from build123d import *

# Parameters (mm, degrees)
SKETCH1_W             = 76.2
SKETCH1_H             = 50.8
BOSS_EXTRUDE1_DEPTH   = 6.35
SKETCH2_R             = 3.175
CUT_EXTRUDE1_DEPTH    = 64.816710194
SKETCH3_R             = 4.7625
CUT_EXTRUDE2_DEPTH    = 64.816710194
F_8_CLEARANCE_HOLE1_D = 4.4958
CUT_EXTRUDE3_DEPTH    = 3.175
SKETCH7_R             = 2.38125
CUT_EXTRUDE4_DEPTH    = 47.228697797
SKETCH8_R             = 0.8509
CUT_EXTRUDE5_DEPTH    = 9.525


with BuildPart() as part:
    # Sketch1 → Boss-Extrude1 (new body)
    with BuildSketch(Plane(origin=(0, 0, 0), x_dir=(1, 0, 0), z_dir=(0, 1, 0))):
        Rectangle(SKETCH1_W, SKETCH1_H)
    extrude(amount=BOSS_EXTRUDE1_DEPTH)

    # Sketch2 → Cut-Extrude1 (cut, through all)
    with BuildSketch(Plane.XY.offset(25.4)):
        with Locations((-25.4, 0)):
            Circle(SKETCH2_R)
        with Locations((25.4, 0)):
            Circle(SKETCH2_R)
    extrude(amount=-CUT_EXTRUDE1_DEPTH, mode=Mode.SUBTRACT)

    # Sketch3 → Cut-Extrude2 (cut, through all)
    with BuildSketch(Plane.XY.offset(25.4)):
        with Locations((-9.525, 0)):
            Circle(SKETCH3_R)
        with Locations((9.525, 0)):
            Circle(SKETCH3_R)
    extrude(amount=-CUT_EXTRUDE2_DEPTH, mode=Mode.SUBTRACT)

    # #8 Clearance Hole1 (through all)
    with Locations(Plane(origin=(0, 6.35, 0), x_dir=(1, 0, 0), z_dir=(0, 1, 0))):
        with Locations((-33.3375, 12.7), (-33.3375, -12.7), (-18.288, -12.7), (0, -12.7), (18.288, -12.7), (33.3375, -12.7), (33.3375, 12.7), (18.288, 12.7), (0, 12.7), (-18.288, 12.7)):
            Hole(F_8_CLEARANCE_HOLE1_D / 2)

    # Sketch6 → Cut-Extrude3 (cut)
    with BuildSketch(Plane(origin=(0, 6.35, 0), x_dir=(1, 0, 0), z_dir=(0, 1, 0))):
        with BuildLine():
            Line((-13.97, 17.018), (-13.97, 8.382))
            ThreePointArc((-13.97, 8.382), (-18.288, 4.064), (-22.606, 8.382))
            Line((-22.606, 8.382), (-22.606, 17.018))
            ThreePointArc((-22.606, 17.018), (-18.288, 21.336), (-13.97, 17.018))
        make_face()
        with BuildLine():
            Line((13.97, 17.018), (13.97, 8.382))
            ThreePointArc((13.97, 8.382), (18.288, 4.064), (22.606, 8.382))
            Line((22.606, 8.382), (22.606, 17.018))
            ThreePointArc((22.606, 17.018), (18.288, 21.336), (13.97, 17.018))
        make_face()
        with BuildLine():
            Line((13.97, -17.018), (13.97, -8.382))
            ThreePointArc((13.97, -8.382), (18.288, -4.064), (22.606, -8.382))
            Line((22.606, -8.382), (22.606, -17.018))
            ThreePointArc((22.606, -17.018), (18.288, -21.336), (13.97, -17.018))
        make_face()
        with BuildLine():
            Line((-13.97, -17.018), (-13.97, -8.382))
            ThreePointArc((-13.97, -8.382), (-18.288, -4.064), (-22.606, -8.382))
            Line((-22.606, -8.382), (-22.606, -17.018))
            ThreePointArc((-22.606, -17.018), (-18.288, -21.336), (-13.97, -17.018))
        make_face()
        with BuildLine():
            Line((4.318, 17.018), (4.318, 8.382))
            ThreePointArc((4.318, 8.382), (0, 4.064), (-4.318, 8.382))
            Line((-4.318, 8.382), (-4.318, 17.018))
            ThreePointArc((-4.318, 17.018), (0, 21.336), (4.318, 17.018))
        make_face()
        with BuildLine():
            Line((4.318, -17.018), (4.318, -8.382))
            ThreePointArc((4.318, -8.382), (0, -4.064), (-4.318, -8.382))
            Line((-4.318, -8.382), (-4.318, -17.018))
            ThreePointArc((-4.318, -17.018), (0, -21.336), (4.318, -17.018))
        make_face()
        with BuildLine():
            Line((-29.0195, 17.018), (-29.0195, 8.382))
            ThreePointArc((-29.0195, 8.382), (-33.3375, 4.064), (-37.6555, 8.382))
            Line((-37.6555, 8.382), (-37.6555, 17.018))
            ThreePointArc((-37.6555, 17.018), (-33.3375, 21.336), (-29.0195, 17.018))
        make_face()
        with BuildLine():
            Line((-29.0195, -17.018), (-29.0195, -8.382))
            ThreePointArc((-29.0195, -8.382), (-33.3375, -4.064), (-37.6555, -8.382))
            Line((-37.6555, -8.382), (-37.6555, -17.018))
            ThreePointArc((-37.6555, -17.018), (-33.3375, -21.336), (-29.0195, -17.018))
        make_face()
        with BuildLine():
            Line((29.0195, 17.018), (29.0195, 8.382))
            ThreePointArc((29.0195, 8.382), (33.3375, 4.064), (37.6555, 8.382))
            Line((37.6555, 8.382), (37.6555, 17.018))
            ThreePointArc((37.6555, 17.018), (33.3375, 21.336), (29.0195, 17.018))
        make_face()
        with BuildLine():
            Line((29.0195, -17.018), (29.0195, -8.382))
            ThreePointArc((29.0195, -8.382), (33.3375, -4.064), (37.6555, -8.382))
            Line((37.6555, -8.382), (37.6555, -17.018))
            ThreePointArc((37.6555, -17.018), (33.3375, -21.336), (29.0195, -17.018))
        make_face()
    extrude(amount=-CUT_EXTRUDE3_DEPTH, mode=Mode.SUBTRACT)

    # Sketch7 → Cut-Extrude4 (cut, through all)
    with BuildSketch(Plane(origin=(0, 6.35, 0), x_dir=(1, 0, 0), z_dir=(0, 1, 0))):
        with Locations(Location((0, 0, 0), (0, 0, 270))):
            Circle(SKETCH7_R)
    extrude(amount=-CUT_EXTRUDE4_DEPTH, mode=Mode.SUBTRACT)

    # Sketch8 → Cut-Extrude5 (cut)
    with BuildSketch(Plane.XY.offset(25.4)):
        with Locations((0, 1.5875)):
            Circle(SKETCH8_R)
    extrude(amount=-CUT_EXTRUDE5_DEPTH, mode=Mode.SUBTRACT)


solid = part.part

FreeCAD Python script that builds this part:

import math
import FreeCAD as App
import Part
import Sketcher

V = App.Vector
Q = App.Units.Quantity

doc = App.newDocument("Part")
body = doc.addObject("PartDesign::Body", "Body")

# Sketch on XZ plane
sketch1 = doc.addObject("Sketcher::SketchObject", "Sketch")
body.addObject(sketch1)
sketch1.AttachmentSupport = (doc.XZ_Plane, [""])
sketch1.MapMode = "FlatFace"
sketch1.addGeometry(Part.LineSegment(V(-38, -25, 0), V(-38, 25, 0)), False)
sketch1.addGeometry(Part.LineSegment(V(-38, 25, 0), V(38, 25, 0)), False)
sketch1.addGeometry(Part.LineSegment(V(38, 25, 0), V(38, -25, 0)), False)
sketch1.addGeometry(Part.LineSegment(V(38, -25, 0), V(-38, -25, 0)), False)
sketch1.addConstraint(Sketcher.Constraint("Coincident", 0, 2, 1, 1))
sketch1.addConstraint(Sketcher.Constraint("Coincident", 1, 2, 2, 1))
sketch1.addConstraint(Sketcher.Constraint("Coincident", 2, 2, 3, 1))
sketch1.addConstraint(Sketcher.Constraint("Coincident", 3, 2, 0, 1))
sketch1.addConstraint(Sketcher.Constraint("Vertical", 0))
sketch1.addConstraint(Sketcher.Constraint("Horizontal", 1))
sketch1.addConstraint(Sketcher.Constraint("Vertical", 2))
sketch1.addConstraint(Sketcher.Constraint("Horizontal", 3))
sketch1.addConstraint(Sketcher.Constraint("Symmetric", 0, 2, 2, 2, -1, 1))
sketch1.addConstraint(Sketcher.Constraint("DistanceX", 1, 1, 1, 2, Q("3 in")))
sketch1.addConstraint(Sketcher.Constraint("DistanceY", 0, 1, 0, 2, Q("2 in")))
pad1 = doc.addObject("PartDesign::Pad", "Pad")
body.addObject(pad1)
pad1.Profile = sketch1
pad1.Length = Q("0.25 in")
pad1.Reversed = True

# Sketch on XY plane
sketch2 = doc.addObject("Sketcher::SketchObject", "Sketch001")
body.addObject(sketch2)
sketch2.AttachmentSupport = (doc.XY_Plane, [""])
sketch2.MapMode = "FlatFace"
sketch2.AttachmentOffset = App.Placement(V(0, 0, 1 * 25.4), App.Rotation())
sketch2.addGeometry(Part.Circle(V(-25.4, 0, 0), V(0, 0, 1), 3.2), False)
sketch2.addGeometry(Part.Circle(V(25.4, 0, 0), V(0, 0, 1), 3.2), False)
sketch2.addConstraint(Sketcher.Constraint("Equal", 0, 1))
sketch2.addConstraint(Sketcher.Constraint("Symmetric", 0, 3, 1, 3, -1, 1))
sketch2.addConstraint(Sketcher.Constraint("PointOnObject", 0, 3, -1))
sketch2.addConstraint(Sketcher.Constraint("Diameter", 0, Q("0.25 in")))
sketch2.addConstraint(Sketcher.Constraint("DistanceX", 0, 3, -1, 1, Q("1 in")))
pocket1 = doc.addObject("PartDesign::Pocket", "Pocket")
body.addObject(pocket1)
pocket1.Profile = sketch2
pocket1.Type = "ThroughAll"

# Sketch on XY plane
sketch3 = doc.addObject("Sketcher::SketchObject", "Sketch002")
body.addObject(sketch3)
sketch3.AttachmentSupport = (doc.XY_Plane, [""])
sketch3.MapMode = "FlatFace"
sketch3.AttachmentOffset = App.Placement(V(0, 0, 1 * 25.4), App.Rotation())
sketch3.addGeometry(Part.Circle(V(-9.5, 0, 0), V(0, 0, 1), 4.8), False)
sketch3.addGeometry(Part.Circle(V(9.5, 0, 0), V(0, 0, 1), 4.8), False)
sketch3.addConstraint(Sketcher.Constraint("Equal", 0, 1))
sketch3.addConstraint(Sketcher.Constraint("Symmetric", 0, 3, 1, 3, -1, 1))
sketch3.addConstraint(Sketcher.Constraint("PointOnObject", 0, 3, -1))
sketch3.addConstraint(Sketcher.Constraint("Diameter", 0, Q("0.375 in")))
sketch3.addConstraint(Sketcher.Constraint("DistanceX", 0, 3, 1, 3, Q("0.75 in")))
pocket2 = doc.addObject("PartDesign::Pocket", "Pocket001")
body.addObject(pocket2)
pocket2.Profile = sketch3
pocket2.Type = "ThroughAll"

# Sketch on XZ plane
sketch4 = doc.addObject("Sketcher::SketchObject", "Sketch003")
body.addObject(sketch4)
sketch4.AttachmentSupport = (doc.XZ_Plane, [""])
sketch4.MapMode = "FlatFace"
sketch4.AttachmentOffset = App.Placement(V(0, 0, -0.25 * 25.4), App.Rotation())
sketch4.addGeometry(Part.Circle(V(-33.3, -12.7, 0), V(0, 0, 1), 2.2), False)
sketch4.addGeometry(Part.Circle(V(-33.3, 12.7, 0), V(0, 0, 1), 2.2), False)
sketch4.addGeometry(Part.Circle(V(-18.3, 12.7, 0), V(0, 0, 1), 2.2), False)
sketch4.addGeometry(Part.Circle(V(0, 12.7, 0), V(0, 0, 1), 2.2), False)
sketch4.addGeometry(Part.Circle(V(18.3, 12.7, 0), V(0, 0, 1), 2.2), False)
sketch4.addGeometry(Part.Circle(V(33.3, 12.7, 0), V(0, 0, 1), 2.2), False)
sketch4.addGeometry(Part.Circle(V(33.3, -12.7, 0), V(0, 0, 1), 2.2), False)
sketch4.addGeometry(Part.Circle(V(18.3, -12.7, 0), V(0, 0, 1), 2.2), False)
sketch4.addGeometry(Part.Circle(V(0, -12.7, 0), V(0, 0, 1), 2.2), False)
sketch4.addGeometry(Part.Circle(V(-18.3, -12.7, 0), V(0, 0, 1), 2.2), False)
sketch4.addConstraint(Sketcher.Constraint("Equal", 0, 1))
sketch4.addConstraint(Sketcher.Constraint("Equal", 1, 2))
sketch4.addConstraint(Sketcher.Constraint("Equal", 2, 3))
sketch4.addConstraint(Sketcher.Constraint("Equal", 3, 4))
sketch4.addConstraint(Sketcher.Constraint("Equal", 4, 5))
sketch4.addConstraint(Sketcher.Constraint("Equal", 5, 6))
sketch4.addConstraint(Sketcher.Constraint("Equal", 6, 7))
sketch4.addConstraint(Sketcher.Constraint("Equal", 7, 8))
sketch4.addConstraint(Sketcher.Constraint("Equal", 8, 9))
sketch4.addConstraint(Sketcher.Constraint("Symmetric", 0, 3, 5, 3, -1, 1))
sketch4.addConstraint(Sketcher.Constraint("Symmetric", 1, 3, 6, 3, -1, 1))
sketch4.addConstraint(Sketcher.Constraint("Symmetric", 2, 3, 7, 3, -1, 1))
sketch4.addConstraint(Sketcher.Constraint("Symmetric", 3, 3, 8, 3, -1, 1))
sketch4.addConstraint(Sketcher.Constraint("Symmetric", 4, 3, 9, 3, -1, 1))
sketch4.addConstraint(Sketcher.Constraint("Symmetric", 2, 3, 4, 3, -2))
sketch4.addConstraint(Sketcher.Constraint("Symmetric", 1, 3, 5, 3, -2))
sketch4.addConstraint(Sketcher.Constraint("PointOnObject", 3, 3, -2))
sketch4.addConstraint(Sketcher.Constraint("Horizontal", 1, 3, 2, 3))
sketch4.addConstraint(Sketcher.Constraint("Horizontal", 2, 3, 3, 3))
sketch4.addConstraint(Sketcher.Constraint("Diameter", 0, Q("0.177 in")))
sketch4.addConstraint(Sketcher.Constraint("DistanceY", 0, 3, 1, 3, Q("1 in")))
sketch4.addConstraint(Sketcher.Constraint("DistanceX", 2, 3, -1, 1, Q("0.72 in")))
sketch4.addConstraint(Sketcher.Constraint("DistanceX", 0, 3, -1, 1, Q("1.3125 in")))
doc.recompute()
hole = doc.addObject("PartDesign::Hole", "Hole")
body.addObject(hole)
hole.Profile = sketch4
hole.ThreadType = "None"
hole.Diameter = Q("0.177 in")
hole.DepthType = "ThroughAll"
hole.Reversed = True

# Sketch on XZ plane
sketch5 = doc.addObject("Sketcher::SketchObject", "Sketch004")
body.addObject(sketch5)
sketch5.AttachmentSupport = (doc.XZ_Plane, [""])
sketch5.MapMode = "FlatFace"
sketch5.AttachmentOffset = App.Placement(V(0, 0, -0.25 * 25.4), App.Rotation())
sketch5.addGeometry(Part.LineSegment(V(-14, -8.4, 0), V(-14, -17, 0)), False)
sketch5.addGeometry(Part.ArcOfCircle(Part.Circle(V(-18.3, -17, 0), V(0, 0, 1), 4.3), math.radians(180), math.radians(360)), False)
sketch5.addGeometry(Part.LineSegment(V(-22.6, -17, 0), V(-22.6, -8.4, 0)), False)
sketch5.addGeometry(Part.ArcOfCircle(Part.Circle(V(-18.3, -8.4, 0), V(0, 0, 1), 4.3), math.radians(0), math.radians(180)), False)
sketch5.addGeometry(Part.LineSegment(V(14, -17, 0), V(14, -8.4, 0)), False)
sketch5.addGeometry(Part.ArcOfCircle(Part.Circle(V(18.3, -8.4, 0), V(0, 0, 1), 4.3), math.radians(0), math.radians(180)), False)
sketch5.addGeometry(Part.LineSegment(V(22.6, -8.4, 0), V(22.6, -17, 0)), False)
sketch5.addGeometry(Part.ArcOfCircle(Part.Circle(V(18.3, -17, 0), V(0, 0, 1), 4.3), math.radians(180), math.radians(360)), False)
sketch5.addGeometry(Part.LineSegment(V(14, 8.4, 0), V(14, 17, 0)), False)
sketch5.addGeometry(Part.ArcOfCircle(Part.Circle(V(18.3, 17, 0), V(0, 0, 1), 4.3), math.radians(0), math.radians(180)), False)
sketch5.addGeometry(Part.LineSegment(V(22.6, 17, 0), V(22.6, 8.4, 0)), False)
sketch5.addGeometry(Part.ArcOfCircle(Part.Circle(V(18.3, 8.4, 0), V(0, 0, 1), 4.3), math.radians(180), math.radians(360)), False)
sketch5.addGeometry(Part.LineSegment(V(-14, 17, 0), V(-14, 8.4, 0)), False)
sketch5.addGeometry(Part.ArcOfCircle(Part.Circle(V(-18.3, 8.4, 0), V(0, 0, 1), 4.3), math.radians(180), math.radians(360)), False)
sketch5.addGeometry(Part.LineSegment(V(-22.6, 8.4, 0), V(-22.6, 17, 0)), False)
sketch5.addGeometry(Part.ArcOfCircle(Part.Circle(V(-18.3, 17, 0), V(0, 0, 1), 4.3), math.radians(0), math.radians(180)), False)
sketch5.addGeometry(Part.LineSegment(V(4.3, -8.4, 0), V(4.3, -17, 0)), False)
sketch5.addGeometry(Part.ArcOfCircle(Part.Circle(V(0, -17, 0), V(0, 0, 1), 4.3), math.radians(180), math.radians(360)), False)
sketch5.addGeometry(Part.LineSegment(V(-4.3, -17, 0), V(-4.3, -8.4, 0)), False)
sketch5.addGeometry(Part.ArcOfCircle(Part.Circle(V(0, -8.4, 0), V(0, 0, 1), 4.3), math.radians(0), math.radians(180)), False)
sketch5.addGeometry(Part.LineSegment(V(4.3, 17, 0), V(4.3, 8.4, 0)), False)
sketch5.addGeometry(Part.ArcOfCircle(Part.Circle(V(0, 8.4, 0), V(0, 0, 1), 4.3), math.radians(180), math.radians(360)), False)
sketch5.addGeometry(Part.LineSegment(V(-4.3, 8.4, 0), V(-4.3, 17, 0)), False)
sketch5.addGeometry(Part.ArcOfCircle(Part.Circle(V(0, 17, 0), V(0, 0, 1), 4.3), math.radians(0), math.radians(180)), False)
sketch5.addGeometry(Part.LineSegment(V(-29, -8.4, 0), V(-29, -17, 0)), False)
sketch5.addGeometry(Part.ArcOfCircle(Part.Circle(V(-33.3, -17, 0), V(0, 0, 1), 4.3), math.radians(180), math.radians(360)), False)
sketch5.addGeometry(Part.LineSegment(V(-37.7, -17, 0), V(-37.7, -8.4, 0)), False)
sketch5.addGeometry(Part.ArcOfCircle(Part.Circle(V(-33.3, -8.4, 0), V(0, 0, 1), 4.3), math.radians(0), math.radians(180)), False)
sketch5.addGeometry(Part.LineSegment(V(-29, 17, 0), V(-29, 8.4, 0)), False)
sketch5.addGeometry(Part.ArcOfCircle(Part.Circle(V(-33.3, 8.4, 0), V(0, 0, 1), 4.3), math.radians(180), math.radians(360)), False)
sketch5.addGeometry(Part.LineSegment(V(-37.7, 8.4, 0), V(-37.7, 17, 0)), False)
sketch5.addGeometry(Part.ArcOfCircle(Part.Circle(V(-33.3, 17, 0), V(0, 0, 1), 4.3), math.radians(0), math.radians(180)), False)
sketch5.addGeometry(Part.LineSegment(V(29, -17, 0), V(29, -8.4, 0)), False)
sketch5.addGeometry(Part.ArcOfCircle(Part.Circle(V(33.3, -8.4, 0), V(0, 0, 1), 4.3), math.radians(0), math.radians(180)), False)
sketch5.addGeometry(Part.LineSegment(V(37.7, -8.4, 0), V(37.7, -17, 0)), False)
sketch5.addGeometry(Part.ArcOfCircle(Part.Circle(V(33.3, -17, 0), V(0, 0, 1), 4.3), math.radians(180), math.radians(360)), False)
sketch5.addGeometry(Part.LineSegment(V(29, 8.4, 0), V(29, 17, 0)), False)
sketch5.addGeometry(Part.ArcOfCircle(Part.Circle(V(33.3, 17, 0), V(0, 0, 1), 4.3), math.radians(0), math.radians(180)), False)
sketch5.addGeometry(Part.LineSegment(V(37.7, 17, 0), V(37.7, 8.4, 0)), False)
sketch5.addGeometry(Part.ArcOfCircle(Part.Circle(V(33.3, 8.4, 0), V(0, 0, 1), 4.3), math.radians(180), math.radians(360)), False)
sketch5.addConstraint(Sketcher.Constraint("Tangent", 0, 2, 1, 2))
sketch5.addConstraint(Sketcher.Constraint("Tangent", 1, 1, 2, 1))
sketch5.addConstraint(Sketcher.Constraint("Tangent", 2, 2, 3, 2))
sketch5.addConstraint(Sketcher.Constraint("Tangent", 3, 1, 0, 1))
sketch5.addConstraint(Sketcher.Constraint("Tangent", 4, 2, 5, 2))
sketch5.addConstraint(Sketcher.Constraint("Tangent", 5, 1, 6, 1))
sketch5.addConstraint(Sketcher.Constraint("Tangent", 6, 2, 7, 2))
sketch5.addConstraint(Sketcher.Constraint("Tangent", 7, 1, 4, 1))
sketch5.addConstraint(Sketcher.Constraint("Tangent", 8, 2, 9, 2))
sketch5.addConstraint(Sketcher.Constraint("Tangent", 9, 1, 10, 1))
sketch5.addConstraint(Sketcher.Constraint("Tangent", 10, 2, 11, 2))
sketch5.addConstraint(Sketcher.Constraint("Tangent", 11, 1, 8, 1))
sketch5.addConstraint(Sketcher.Constraint("Tangent", 12, 2, 13, 2))
sketch5.addConstraint(Sketcher.Constraint("Tangent", 13, 1, 14, 1))
sketch5.addConstraint(Sketcher.Constraint("Tangent", 14, 2, 15, 2))
sketch5.addConstraint(Sketcher.Constraint("Tangent", 15, 1, 12, 1))
sketch5.addConstraint(Sketcher.Constraint("Tangent", 16, 2, 17, 2))
sketch5.addConstraint(Sketcher.Constraint("Tangent", 17, 1, 18, 1))
sketch5.addConstraint(Sketcher.Constraint("Tangent", 18, 2, 19, 2))
sketch5.addConstraint(Sketcher.Constraint("Tangent", 19, 1, 16, 1))
sketch5.addConstraint(Sketcher.Constraint("Tangent", 20, 2, 21, 2))
sketch5.addConstraint(Sketcher.Constraint("Tangent", 21, 1, 22, 1))
sketch5.addConstraint(Sketcher.Constraint("Tangent", 22, 2, 23, 2))
sketch5.addConstraint(Sketcher.Constraint("Tangent", 23, 1, 20, 1))
sketch5.addConstraint(Sketcher.Constraint("Tangent", 24, 2, 25, 2))
sketch5.addConstraint(Sketcher.Constraint("Tangent", 25, 1, 26, 1))
sketch5.addConstraint(Sketcher.Constraint("Tangent", 26, 2, 27, 2))
sketch5.addConstraint(Sketcher.Constraint("Tangent", 27, 1, 24, 1))
sketch5.addConstraint(Sketcher.Constraint("Tangent", 28, 2, 29, 2))
sketch5.addConstraint(Sketcher.Constraint("Tangent", 29, 1, 30, 1))
sketch5.addConstraint(Sketcher.Constraint("Tangent", 30, 2, 31, 2))
sketch5.addConstraint(Sketcher.Constraint("Tangent", 31, 1, 28, 1))
sketch5.addConstraint(Sketcher.Constraint("Tangent", 32, 2, 33, 2))
sketch5.addConstraint(Sketcher.Constraint("Tangent", 33, 1, 34, 1))
sketch5.addConstraint(Sketcher.Constraint("Tangent", 34, 2, 35, 2))
sketch5.addConstraint(Sketcher.Constraint("Tangent", 35, 1, 32, 1))
sketch5.addConstraint(Sketcher.Constraint("Tangent", 36, 2, 37, 2))
sketch5.addConstraint(Sketcher.Constraint("Tangent", 37, 1, 38, 1))
sketch5.addConstraint(Sketcher.Constraint("Tangent", 38, 2, 39, 2))
sketch5.addConstraint(Sketcher.Constraint("Tangent", 39, 1, 36, 1))
sketch5.addConstraint(Sketcher.Constraint("Vertical", 0))
sketch5.addConstraint(Sketcher.Constraint("Vertical", 2))
sketch5.addConstraint(Sketcher.Constraint("Vertical", 4))
sketch5.addConstraint(Sketcher.Constraint("Vertical", 6))
sketch5.addConstraint(Sketcher.Constraint("Vertical", 8))
sketch5.addConstraint(Sketcher.Constraint("Vertical", 10))
sketch5.addConstraint(Sketcher.Constraint("Vertical", 12))
sketch5.addConstraint(Sketcher.Constraint("Vertical", 14))
sketch5.addConstraint(Sketcher.Constraint("Vertical", 16))
sketch5.addConstraint(Sketcher.Constraint("Vertical", 18))
sketch5.addConstraint(Sketcher.Constraint("Vertical", 20))
sketch5.addConstraint(Sketcher.Constraint("Vertical", 22))
sketch5.addConstraint(Sketcher.Constraint("Vertical", 24))
sketch5.addConstraint(Sketcher.Constraint("Vertical", 26))
sketch5.addConstraint(Sketcher.Constraint("Vertical", 28))
sketch5.addConstraint(Sketcher.Constraint("Vertical", 30))
sketch5.addConstraint(Sketcher.Constraint("Vertical", 32))
sketch5.addConstraint(Sketcher.Constraint("Vertical", 34))
sketch5.addConstraint(Sketcher.Constraint("Vertical", 36))
sketch5.addConstraint(Sketcher.Constraint("Vertical", 38))
sketch5.addConstraint(Sketcher.Constraint("Equal", 3, 5))
sketch5.addConstraint(Sketcher.Constraint("Equal", 7, 9))
sketch5.addConstraint(Sketcher.Constraint("Equal", 11, 13))
sketch5.addConstraint(Sketcher.Constraint("Equal", 15, 17))
sketch5.addConstraint(Sketcher.Constraint("Equal", 19, 21))
sketch5.addConstraint(Sketcher.Constraint("Equal", 23, 25))
sketch5.addConstraint(Sketcher.Constraint("Equal", 27, 29))
sketch5.addConstraint(Sketcher.Constraint("Equal", 31, 33))
sketch5.addConstraint(Sketcher.Constraint("Equal", 35, 37))
sketch5.addConstraint(Sketcher.Constraint("Symmetric", 1, 3, 9, 3, -1, 1))
sketch5.addConstraint(Sketcher.Constraint("Symmetric", 5, 3, 13, 3, -1, 1))
sketch5.addConstraint(Sketcher.Constraint("Symmetric", 19, 3, 21, 3, -1, 1))
sketch5.addConstraint(Sketcher.Constraint("Symmetric", 29, 3, 33, 3, -1, 1))
sketch5.addConstraint(Sketcher.Constraint("Symmetric", 25, 3, 37, 3, -1, 1))
sketch5.addConstraint(Sketcher.Constraint("Symmetric", 3, 3, 5, 3, -2))
sketch5.addConstraint(Sketcher.Constraint("Symmetric", 27, 3, 33, 3, -2))
sketch5.addConstraint(Sketcher.Constraint("Symmetric", 17, 3, 23, 3, -1))
sketch5.addConstraint(Sketcher.Constraint("Horizontal", 1, 3, 7, 3))
sketch5.addConstraint(Sketcher.Constraint("Horizontal", 11, 3, 13, 3))
sketch5.addConstraint(Sketcher.Constraint("Horizontal", 9, 3, 15, 3))
sketch5.addConstraint(Sketcher.Constraint("Horizontal", 7, 3, 17, 3))
sketch5.addConstraint(Sketcher.Constraint("Horizontal", 5, 3, 19, 3))
sketch5.addConstraint(Sketcher.Constraint("Horizontal", 17, 3, 25, 3))
sketch5.addConstraint(Sketcher.Constraint("Horizontal", 19, 3, 27, 3))
sketch5.addConstraint(Sketcher.Constraint("Horizontal", 23, 3, 31, 3))
sketch5.addConstraint(Sketcher.Constraint("Horizontal", 25, 3, 35, 3))
sketch5.addConstraint(Sketcher.Constraint("Horizontal", 29, 3, 39, 3))
sketch5.addConstraint(Sketcher.Constraint("Radius", 1, Q("0.17 in")))
sketch5.addConstraint(Sketcher.Constraint("DistanceY", 5, 3, 9, 3, Q("1 in")))
sketch5.addConstraint(Sketcher.Constraint("DistanceY", 0, 2, 0, 1, Q("0.34 in")))
sketch5.addConstraint(Sketcher.Constraint("DistanceX", 1, 3, -1, 1, Q("0.72 in")))
sketch5.addConstraint(Sketcher.Constraint("DistanceX", 25, 3, -1, 1, Q("1.3125 in")))
pocket3 = doc.addObject("PartDesign::Pocket", "Pocket002")
body.addObject(pocket3)
pocket3.Profile = sketch5
pocket3.Length = Q("0.125 in")
pocket3.Reversed = True

# Sketch on XZ plane
sketch6 = doc.addObject("Sketcher::SketchObject", "Sketch005")
body.addObject(sketch6)
sketch6.AttachmentSupport = (doc.XZ_Plane, [""])
sketch6.MapMode = "FlatFace"
sketch6.AttachmentOffset = App.Placement(V(0, 0, -0.25 * 25.4), App.Rotation())
sketch6.addGeometry(Part.Circle(V(0, 0, 0), V(0, 0, 1), 2.4), False)
sketch6.addConstraint(Sketcher.Constraint("Coincident", 0, 3, -1, 1))
sketch6.addConstraint(Sketcher.Constraint("Diameter", 0, Q("0.1875 in")))
pocket4 = doc.addObject("PartDesign::Pocket", "Pocket003")
body.addObject(pocket4)
pocket4.Profile = sketch6
pocket4.Type = "ThroughAll"
pocket4.Reversed = True

# Sketch on XY plane
sketch7 = doc.addObject("Sketcher::SketchObject", "Sketch006")
body.addObject(sketch7)
sketch7.AttachmentSupport = (doc.XY_Plane, [""])
sketch7.MapMode = "FlatFace"
sketch7.AttachmentOffset = App.Placement(V(0, 0, 1 * 25.4), App.Rotation())
sketch7.addGeometry(Part.Circle(V(0, 1.6, 0), V(0, 0, 1), 0.9), False)
sketch7.addConstraint(Sketcher.Constraint("PointOnObject", 0, 3, -2))
sketch7.addConstraint(Sketcher.Constraint("Diameter", 0, Q("0.067 in")))
sketch7.addConstraint(Sketcher.Constraint("DistanceY", -1, 1, 0, 3, Q("0.0625 in")))
pocket5 = doc.addObject("PartDesign::Pocket", "Pocket004")
body.addObject(pocket5)
pocket5.Profile = sketch7
pocket5.Length = Q("0.375 in")

doc.recompute()
